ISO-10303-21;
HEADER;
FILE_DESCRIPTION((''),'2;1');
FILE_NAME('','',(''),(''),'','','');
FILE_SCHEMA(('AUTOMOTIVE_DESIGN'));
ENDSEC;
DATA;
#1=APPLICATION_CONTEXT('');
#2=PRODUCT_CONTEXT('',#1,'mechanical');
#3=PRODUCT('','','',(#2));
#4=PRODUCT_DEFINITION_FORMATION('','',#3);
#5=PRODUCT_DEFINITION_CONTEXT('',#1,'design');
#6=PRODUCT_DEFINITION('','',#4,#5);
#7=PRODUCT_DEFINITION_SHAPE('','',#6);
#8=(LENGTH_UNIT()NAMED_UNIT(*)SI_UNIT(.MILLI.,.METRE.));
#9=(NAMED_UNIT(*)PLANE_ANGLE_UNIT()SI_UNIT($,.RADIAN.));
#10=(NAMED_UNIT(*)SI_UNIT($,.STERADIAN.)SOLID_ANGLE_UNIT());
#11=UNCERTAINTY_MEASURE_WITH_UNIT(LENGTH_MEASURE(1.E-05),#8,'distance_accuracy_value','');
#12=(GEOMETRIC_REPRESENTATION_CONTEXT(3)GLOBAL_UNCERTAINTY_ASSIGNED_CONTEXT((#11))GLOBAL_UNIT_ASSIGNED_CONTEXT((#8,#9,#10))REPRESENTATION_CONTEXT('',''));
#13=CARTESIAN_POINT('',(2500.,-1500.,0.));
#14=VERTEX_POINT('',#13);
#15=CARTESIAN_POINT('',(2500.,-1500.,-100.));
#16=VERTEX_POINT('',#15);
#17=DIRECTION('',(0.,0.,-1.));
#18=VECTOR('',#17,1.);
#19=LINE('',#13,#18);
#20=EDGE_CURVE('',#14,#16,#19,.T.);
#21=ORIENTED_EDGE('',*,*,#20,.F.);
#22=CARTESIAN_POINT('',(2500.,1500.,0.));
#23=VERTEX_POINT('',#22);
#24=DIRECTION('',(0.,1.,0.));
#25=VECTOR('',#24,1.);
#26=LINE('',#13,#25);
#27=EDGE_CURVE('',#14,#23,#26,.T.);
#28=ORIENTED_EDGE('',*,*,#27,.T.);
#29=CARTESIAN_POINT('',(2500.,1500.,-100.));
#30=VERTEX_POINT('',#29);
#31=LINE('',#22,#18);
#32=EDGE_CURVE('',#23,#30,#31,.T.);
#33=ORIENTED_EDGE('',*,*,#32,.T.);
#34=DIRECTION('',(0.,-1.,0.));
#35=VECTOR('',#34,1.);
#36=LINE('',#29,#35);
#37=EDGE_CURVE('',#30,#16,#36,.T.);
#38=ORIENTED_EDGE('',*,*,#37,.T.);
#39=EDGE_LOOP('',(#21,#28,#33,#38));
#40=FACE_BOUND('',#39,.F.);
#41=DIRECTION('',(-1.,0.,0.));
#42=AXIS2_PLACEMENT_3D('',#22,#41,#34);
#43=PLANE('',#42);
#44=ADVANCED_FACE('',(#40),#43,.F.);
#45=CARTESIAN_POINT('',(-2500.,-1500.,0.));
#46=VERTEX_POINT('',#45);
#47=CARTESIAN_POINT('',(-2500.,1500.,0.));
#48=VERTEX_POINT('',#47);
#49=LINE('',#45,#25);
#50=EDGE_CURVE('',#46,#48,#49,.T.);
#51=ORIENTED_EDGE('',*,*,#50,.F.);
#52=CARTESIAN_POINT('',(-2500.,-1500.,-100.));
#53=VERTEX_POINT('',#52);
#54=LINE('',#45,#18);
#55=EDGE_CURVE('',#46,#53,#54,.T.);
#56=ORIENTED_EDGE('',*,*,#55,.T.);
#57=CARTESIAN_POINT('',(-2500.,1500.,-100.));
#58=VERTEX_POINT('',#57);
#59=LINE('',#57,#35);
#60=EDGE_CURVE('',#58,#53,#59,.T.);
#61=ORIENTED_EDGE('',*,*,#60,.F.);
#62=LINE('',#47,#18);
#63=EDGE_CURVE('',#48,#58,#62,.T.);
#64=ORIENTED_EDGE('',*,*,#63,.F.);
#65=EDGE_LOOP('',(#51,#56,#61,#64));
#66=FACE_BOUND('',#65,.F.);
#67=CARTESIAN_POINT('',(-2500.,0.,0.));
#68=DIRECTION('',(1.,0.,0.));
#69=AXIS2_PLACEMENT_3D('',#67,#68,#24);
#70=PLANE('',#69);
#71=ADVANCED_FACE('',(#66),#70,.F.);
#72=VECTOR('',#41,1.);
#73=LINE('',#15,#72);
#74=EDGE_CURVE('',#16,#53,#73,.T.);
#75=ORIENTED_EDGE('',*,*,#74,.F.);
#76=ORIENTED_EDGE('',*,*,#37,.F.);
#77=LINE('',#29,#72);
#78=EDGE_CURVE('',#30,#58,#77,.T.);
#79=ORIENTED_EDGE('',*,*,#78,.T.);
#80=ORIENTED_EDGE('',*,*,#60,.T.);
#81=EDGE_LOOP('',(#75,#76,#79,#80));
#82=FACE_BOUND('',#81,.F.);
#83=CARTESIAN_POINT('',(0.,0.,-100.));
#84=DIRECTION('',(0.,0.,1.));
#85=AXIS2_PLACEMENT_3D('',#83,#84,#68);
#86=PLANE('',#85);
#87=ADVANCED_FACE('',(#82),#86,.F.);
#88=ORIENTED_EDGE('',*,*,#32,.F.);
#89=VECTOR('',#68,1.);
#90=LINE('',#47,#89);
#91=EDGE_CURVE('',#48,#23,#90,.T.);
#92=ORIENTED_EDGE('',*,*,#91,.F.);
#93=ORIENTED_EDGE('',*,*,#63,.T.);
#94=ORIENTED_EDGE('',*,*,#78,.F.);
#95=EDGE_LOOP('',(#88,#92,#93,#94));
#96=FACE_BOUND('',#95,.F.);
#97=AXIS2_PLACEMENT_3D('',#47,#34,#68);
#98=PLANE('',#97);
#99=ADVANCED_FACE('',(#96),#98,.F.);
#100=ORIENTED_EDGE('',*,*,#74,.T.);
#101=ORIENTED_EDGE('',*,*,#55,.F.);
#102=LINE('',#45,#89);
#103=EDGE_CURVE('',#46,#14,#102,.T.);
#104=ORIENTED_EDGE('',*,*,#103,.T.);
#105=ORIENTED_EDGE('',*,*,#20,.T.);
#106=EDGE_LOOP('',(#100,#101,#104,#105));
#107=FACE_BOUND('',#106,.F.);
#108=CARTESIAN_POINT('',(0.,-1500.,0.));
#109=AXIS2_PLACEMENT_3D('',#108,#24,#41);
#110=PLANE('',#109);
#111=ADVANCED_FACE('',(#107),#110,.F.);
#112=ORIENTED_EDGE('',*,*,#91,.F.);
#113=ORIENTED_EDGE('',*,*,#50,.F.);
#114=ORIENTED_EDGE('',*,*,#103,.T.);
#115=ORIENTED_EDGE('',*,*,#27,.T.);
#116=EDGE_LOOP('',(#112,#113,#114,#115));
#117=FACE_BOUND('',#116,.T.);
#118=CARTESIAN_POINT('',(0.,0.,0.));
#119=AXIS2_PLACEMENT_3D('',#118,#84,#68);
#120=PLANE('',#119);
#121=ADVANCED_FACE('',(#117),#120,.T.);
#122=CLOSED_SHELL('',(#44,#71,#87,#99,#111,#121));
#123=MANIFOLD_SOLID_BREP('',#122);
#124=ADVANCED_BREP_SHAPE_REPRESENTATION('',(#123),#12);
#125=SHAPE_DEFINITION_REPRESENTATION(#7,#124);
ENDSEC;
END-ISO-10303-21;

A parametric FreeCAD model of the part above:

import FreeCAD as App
import Part
import Sketcher

V = App.Vector
Q = App.Units.Quantity


def add_polygon(sketch, points):
    """Adds a closed chain of lines whose ends are joined by coincident constraints."""
    first, n = sketch.GeometryCount, len(points)
    for a, b in zip(points, points[1:] + points[:1]):
        sketch.addGeometry(Part.LineSegment(App.Vector(*a, 0), App.Vector(*b, 0)), False)
    for i in range(n):
        sketch.addConstraint(Sketcher.Constraint("Coincident", first + i, 2, first + (i + 1) % n, 1))

doc = App.newDocument("Part")
body = doc.addObject("PartDesign::Body", "Body")

# Sketch on XY plane
sketch1 = body.newObject("Sketcher::SketchObject", "Sketch")
sketch1.AttachmentSupport = (doc.getObject("XY_Plane"), [""])
sketch1.MapMode = "FlatFace"
add_polygon(sketch1, [(-2500, 1500), (-2500, -1500), (2500, -1500), (2500, 1500)])  # lines 0-3
sketch1.addConstraint([
    Sketcher.Constraint("Vertical", 0),
    Sketcher.Constraint("Horizontal", 1),
    Sketcher.Constraint("Vertical", 2),
    Sketcher.Constraint("Horizontal", 3),
    Sketcher.Constraint("Symmetric", 0, 2, 2, 2, -1, 1),
    Sketcher.Constraint("DistanceX", 1, 1, 1, 2, Q("5000 mm")),
    Sketcher.Constraint("DistanceY", 0, 2, 0, 1, Q("3000 mm")),
])
pad1 = body.newObject("PartDesign::Pad", "Pad")
pad1.Profile = sketch1
pad1.Length = 100
pad1.Reversed = True

doc.recompute()
